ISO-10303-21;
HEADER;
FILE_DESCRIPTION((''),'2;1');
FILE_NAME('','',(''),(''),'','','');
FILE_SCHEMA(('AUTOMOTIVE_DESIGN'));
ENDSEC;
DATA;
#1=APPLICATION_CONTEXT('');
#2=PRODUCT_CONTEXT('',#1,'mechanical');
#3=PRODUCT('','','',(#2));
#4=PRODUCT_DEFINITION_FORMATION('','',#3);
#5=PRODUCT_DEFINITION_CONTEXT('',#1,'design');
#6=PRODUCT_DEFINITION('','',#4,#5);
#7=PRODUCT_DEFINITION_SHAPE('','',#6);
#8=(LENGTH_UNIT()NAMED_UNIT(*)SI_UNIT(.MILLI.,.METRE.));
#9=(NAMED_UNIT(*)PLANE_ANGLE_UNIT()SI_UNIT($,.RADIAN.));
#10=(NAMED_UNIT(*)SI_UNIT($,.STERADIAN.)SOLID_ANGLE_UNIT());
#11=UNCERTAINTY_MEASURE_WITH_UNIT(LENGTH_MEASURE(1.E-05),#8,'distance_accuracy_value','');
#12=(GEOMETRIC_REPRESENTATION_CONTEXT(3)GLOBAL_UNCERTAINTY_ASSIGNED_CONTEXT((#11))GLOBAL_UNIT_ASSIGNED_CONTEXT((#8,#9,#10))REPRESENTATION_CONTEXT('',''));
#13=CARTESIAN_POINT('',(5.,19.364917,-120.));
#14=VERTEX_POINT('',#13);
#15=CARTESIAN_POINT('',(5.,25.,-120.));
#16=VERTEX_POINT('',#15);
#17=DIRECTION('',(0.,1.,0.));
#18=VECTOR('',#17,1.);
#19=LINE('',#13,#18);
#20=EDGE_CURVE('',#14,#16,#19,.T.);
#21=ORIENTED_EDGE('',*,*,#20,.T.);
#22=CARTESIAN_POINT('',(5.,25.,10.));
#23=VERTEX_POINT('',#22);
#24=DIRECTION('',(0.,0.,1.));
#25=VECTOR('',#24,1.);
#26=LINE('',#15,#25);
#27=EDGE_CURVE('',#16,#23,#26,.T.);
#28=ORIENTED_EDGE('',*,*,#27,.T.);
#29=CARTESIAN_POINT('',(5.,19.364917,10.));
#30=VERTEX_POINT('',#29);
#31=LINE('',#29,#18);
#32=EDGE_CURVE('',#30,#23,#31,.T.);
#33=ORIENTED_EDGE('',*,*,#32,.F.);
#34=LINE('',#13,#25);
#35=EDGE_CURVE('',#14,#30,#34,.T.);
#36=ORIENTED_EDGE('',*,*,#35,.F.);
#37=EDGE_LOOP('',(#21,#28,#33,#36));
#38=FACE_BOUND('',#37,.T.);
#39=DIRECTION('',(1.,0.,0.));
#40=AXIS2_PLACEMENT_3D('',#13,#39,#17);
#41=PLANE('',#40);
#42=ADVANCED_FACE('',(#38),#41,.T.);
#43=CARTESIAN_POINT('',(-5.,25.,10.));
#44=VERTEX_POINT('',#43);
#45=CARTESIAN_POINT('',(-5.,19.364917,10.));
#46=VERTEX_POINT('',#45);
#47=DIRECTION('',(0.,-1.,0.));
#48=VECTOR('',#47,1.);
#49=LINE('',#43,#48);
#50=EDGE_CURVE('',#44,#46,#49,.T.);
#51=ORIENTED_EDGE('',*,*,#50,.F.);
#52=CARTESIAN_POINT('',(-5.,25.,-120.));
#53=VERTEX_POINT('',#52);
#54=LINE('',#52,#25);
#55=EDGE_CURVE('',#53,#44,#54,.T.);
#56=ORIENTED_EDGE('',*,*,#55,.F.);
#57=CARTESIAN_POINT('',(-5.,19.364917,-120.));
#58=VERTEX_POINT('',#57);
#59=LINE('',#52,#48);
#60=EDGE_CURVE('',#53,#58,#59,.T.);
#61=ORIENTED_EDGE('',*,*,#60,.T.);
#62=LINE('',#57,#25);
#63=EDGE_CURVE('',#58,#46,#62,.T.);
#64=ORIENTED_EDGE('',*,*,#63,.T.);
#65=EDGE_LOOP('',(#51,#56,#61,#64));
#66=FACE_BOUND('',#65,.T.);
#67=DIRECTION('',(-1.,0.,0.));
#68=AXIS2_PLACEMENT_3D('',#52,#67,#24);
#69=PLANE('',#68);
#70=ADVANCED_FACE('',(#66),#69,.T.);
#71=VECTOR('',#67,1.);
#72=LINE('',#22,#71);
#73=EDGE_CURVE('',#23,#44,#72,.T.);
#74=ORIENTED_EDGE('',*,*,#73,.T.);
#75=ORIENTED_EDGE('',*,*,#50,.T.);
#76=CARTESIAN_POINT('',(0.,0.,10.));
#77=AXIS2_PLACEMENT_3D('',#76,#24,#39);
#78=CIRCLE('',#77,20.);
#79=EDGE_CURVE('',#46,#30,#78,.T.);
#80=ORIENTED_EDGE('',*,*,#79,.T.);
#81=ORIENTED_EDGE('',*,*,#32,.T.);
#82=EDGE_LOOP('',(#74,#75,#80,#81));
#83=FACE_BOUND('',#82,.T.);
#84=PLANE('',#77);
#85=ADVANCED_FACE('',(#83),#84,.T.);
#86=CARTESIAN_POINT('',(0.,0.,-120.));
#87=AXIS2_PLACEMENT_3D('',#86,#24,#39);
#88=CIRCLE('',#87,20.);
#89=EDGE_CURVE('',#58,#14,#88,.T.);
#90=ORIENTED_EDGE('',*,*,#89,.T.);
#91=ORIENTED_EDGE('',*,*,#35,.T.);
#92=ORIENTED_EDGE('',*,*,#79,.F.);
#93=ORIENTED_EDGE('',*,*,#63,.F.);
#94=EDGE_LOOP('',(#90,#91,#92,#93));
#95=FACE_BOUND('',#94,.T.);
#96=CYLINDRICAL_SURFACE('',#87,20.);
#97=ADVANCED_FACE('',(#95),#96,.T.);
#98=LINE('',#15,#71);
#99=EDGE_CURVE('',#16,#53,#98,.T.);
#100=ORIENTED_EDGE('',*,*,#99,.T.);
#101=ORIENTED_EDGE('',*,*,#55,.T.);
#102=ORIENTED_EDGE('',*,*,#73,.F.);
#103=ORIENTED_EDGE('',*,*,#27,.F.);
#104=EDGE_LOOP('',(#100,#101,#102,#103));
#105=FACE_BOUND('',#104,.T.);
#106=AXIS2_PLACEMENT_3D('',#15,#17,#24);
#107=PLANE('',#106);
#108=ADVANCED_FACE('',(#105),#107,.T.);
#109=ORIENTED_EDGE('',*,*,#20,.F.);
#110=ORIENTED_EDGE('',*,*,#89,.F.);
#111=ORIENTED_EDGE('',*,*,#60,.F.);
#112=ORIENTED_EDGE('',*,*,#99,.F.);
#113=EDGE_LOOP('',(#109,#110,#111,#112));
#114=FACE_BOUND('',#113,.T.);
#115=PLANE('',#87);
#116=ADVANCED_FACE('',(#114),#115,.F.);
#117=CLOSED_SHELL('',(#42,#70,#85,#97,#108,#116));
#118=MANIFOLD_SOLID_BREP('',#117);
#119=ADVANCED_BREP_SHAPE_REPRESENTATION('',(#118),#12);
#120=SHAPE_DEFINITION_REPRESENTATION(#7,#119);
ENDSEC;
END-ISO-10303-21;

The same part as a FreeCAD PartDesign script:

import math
import FreeCAD as App
import Part
import Sketcher

V = App.Vector

doc = App.newDocument("Part")
body = doc.addObject("PartDesign::Body", "Body")

sketch1 = body.newObject("Sketcher::SketchObject", "Sketch")
sketch1.AttachmentSupport = (doc.getObject("XY_Plane"), [""])
sketch1.MapMode = "FlatFace"
sketch1.addGeometry([
    Part.LineSegment(V(-5, 25, 0), V(-5, 19, 0)),
    Part.ArcOfCircle(Part.Circle(V(0, 0, 0), V(0, 0, 1), 20), math.radians(104), math.radians(436)),
    Part.LineSegment(V(5, 19, 0), V(5, 25, 0)),
    Part.LineSegment(V(5, 25, 0), V(-5, 25, 0)),
], False)
sketch1.addConstraint([
    Sketcher.Constraint("Coincident", 0, 2, 1, 1),
    Sketcher.Constraint("Coincident", 1, 2, 2, 1),
    Sketcher.Constraint("Coincident", 2, 2, 3, 1),
    Sketcher.Constraint("Coincident", 3, 2, 0, 1),
    Sketcher.Constraint("Vertical", 0),
    Sketcher.Constraint("Vertical", 2),
    Sketcher.Constraint("Horizontal", 3),
    Sketcher.Constraint("Coincident", 1, 3, -1, 1),
    Sketcher.Constraint("Horizontal", 0, 2, 1, 2),
    Sketcher.Constraint("Radius", 1, 20.0),
    Sketcher.Constraint("DistanceX", 3, 2, 3, 1, 10.0),
    Sketcher.Constraint("DistanceY", -1, 1, 2, 2, 25.0),
])
pad1 = body.newObject("PartDesign::Pad", "Pad")
pad1.Profile = sketch1
pad1.Type = "TwoLengths"
pad1.Length = 10
pad1.Length2 = 120

doc.recompute()
